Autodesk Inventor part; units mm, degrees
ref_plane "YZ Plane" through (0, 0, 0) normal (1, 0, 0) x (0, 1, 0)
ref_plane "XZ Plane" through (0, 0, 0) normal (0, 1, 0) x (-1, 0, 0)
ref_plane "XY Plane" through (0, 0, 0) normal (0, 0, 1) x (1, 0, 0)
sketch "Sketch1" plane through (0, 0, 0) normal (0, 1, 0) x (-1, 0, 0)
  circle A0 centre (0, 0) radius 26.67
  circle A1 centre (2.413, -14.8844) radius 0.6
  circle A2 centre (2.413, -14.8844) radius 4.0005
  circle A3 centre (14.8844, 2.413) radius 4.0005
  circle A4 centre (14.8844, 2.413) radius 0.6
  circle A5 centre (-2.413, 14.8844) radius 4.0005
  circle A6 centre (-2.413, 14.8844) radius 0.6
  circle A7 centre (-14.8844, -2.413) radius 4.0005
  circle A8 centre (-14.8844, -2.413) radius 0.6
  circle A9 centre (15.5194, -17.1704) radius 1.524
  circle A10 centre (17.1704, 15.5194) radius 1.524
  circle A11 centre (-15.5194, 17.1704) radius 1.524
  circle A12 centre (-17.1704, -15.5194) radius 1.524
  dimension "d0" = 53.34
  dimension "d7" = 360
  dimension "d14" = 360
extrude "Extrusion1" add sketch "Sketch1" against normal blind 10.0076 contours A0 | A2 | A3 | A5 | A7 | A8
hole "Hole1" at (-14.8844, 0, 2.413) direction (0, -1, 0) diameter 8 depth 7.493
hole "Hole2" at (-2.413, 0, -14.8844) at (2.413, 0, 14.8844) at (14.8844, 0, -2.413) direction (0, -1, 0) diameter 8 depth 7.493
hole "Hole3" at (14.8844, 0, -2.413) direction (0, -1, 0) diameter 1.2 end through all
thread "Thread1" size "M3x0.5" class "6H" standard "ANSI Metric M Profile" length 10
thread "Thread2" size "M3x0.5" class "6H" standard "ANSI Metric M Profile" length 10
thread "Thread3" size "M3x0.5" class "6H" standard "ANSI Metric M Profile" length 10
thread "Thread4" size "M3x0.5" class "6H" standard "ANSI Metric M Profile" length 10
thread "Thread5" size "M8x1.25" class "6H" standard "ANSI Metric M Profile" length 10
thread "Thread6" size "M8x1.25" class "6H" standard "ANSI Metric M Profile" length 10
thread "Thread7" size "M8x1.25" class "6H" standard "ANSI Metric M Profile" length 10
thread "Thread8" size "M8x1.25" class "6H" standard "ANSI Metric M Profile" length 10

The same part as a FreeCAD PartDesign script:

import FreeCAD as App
import Part
import Sketcher
from FreeCAD import Vector
Q = App.Units.Quantity

doc = App.newDocument("Part")
params = doc.addObject("Spreadsheet::Sheet", "Params")
for row, (alias, value) in enumerate([
    ("sketch1_diameter", "2.1 in"),
    ("sketch1_diameter2", "0.12 in"),
    ("pad1_length", "0.394 in"),
    ("hole_diameter", "8 mm"),
    ("hole_depth", "0.295 in"),
    ("hole2_diameter", "8 mm"),
    ("hole2_depth", "0.295 in"),
    ("hole3_diameter", "1.2 mm"),
], start=1):
    params.set(f"A{row}", alias)
    params.set(f"B{row}", "=" + value)
    params.setAlias(f"B{row}", alias)

body = doc.addObject("PartDesign::Body", "Body")

# Sketch on XZ plane
sketch1 = body.newObject("Sketcher::SketchObject", "Sketch")
sketch1.AttachmentSupport = (doc.getObject("XZ_Plane"), [""])
sketch1.MapMode = "FlatFace"
sketch1.addGeometry([
    Part.Circle(Vector(0, 0, 0), Vector(0, 0, 1), 26.7),  # 0
    Part.Circle(Vector(17.2, -15.5, 0), Vector(0, 0, 1), 1.5),  # 1
    Part.Circle(Vector(-15.5, -17.2, 0), Vector(0, 0, 1), 1.5),  # 2
    Part.Circle(Vector(15.5, 17.2, 0), Vector(0, 0, 1), 1.5),  # 3
    Part.Circle(Vector(-17.2, 15.5, 0), Vector(0, 0, 1), 1.5),  # 4
    Part.Circle(Vector(-2.4, -14.9, 0), Vector(0, 0, 1), 0.6),  # 5
    Part.Circle(Vector(2.4, 14.9, 0), Vector(0, 0, 1), 0.6),  # 6
    Part.Circle(Vector(-14.9, 2.4, 0), Vector(0, 0, 1), 0.6),  # 7
], False)
sketch1.addConstraint([
    Sketcher.Constraint("Coincident", 0, 3, -1, 1),
    Sketcher.Constraint("Equal", 1, 2),
    Sketcher.Constraint("Equal", 2, 3),
    Sketcher.Constraint("Equal", 3, 4),
    Sketcher.Constraint("Equal", 5, 6),
    Sketcher.Constraint("Equal", 6, 7),
    Sketcher.Constraint("Symmetric", 2, 3, 3, 3, -1, 1),
    Sketcher.Constraint("Symmetric", 1, 3, 4, 3, -1, 1),
    Sketcher.Constraint("Symmetric", 5, 3, 6, 3, -1, 1),
    Sketcher.Constraint("Diameter", 0, Q("2.1 in")),
    Sketcher.Constraint("Diameter", 1, Q("0.12 in")),
    Sketcher.Constraint("Diameter", 5, Q("1.2 mm")),
    Sketcher.Constraint("DistanceY", 2, 3, 5, 3, Q("0.09 in")),
    Sketcher.Constraint("DistanceX", 5, 3, 6, 3, Q("0.19 in")),
    Sketcher.Constraint("DistanceX", 4, 3, 7, 3, Q("0.09 in")),
    Sketcher.Constraint("DistanceX", -1, 1, 1, 3, Q("0.676 in")),
    Sketcher.Constraint("DistanceY", 1, 3, -1, 1, Q("0.611 in")),
    Sketcher.Constraint("DistanceX", 2, 3, -1, 1, Q("0.611 in")),
    Sketcher.Constraint("DistanceY", 2, 3, -1, 1, Q("0.676 in")),
    Sketcher.Constraint("DistanceY", -1, 1, 7, 3, Q("0.095 in")),
])
sketch1.setExpression("Constraints[9]", "Params.sketch1_diameter")
sketch1.setExpression("Constraints[10]", "Params.sketch1_diameter2")
pad1 = body.newObject("PartDesign::Pad", "Pad")
pad1.Profile = sketch1
pad1.setExpression("Length", "Params.pad1_length")

# Sketch on XZ plane
sketch2 = body.newObject("Sketcher::SketchObject", "Sketch001")
sketch2.AttachmentSupport = (doc.getObject("XZ_Plane"), [""])
sketch2.MapMode = "FlatFace"
sketch2.addGeometry(Part.Circle(Vector(-14.9, 2.4, 0), Vector(0, 0, 1), 4), False)
sketch2.addConstraint([
    Sketcher.Constraint("Diameter", 0, Q("8 mm")),
    Sketcher.Constraint("DistanceX", 0, 3, -1, 1, Q("0.586 in")),
    Sketcher.Constraint("DistanceY", -1, 1, 0, 3, Q("0.095 in")),
])
doc.recompute()
hole = body.newObject("PartDesign::Hole", "Hole")
hole.Profile = sketch2
hole.ThreadType = "None"
hole.setExpression("Diameter", "Params.hole_diameter")
hole.DepthType = "Dimension"
hole.setExpression("Depth", "Params.hole_depth")
hole.DrillPoint = "Flat"
hole.Reversed = True

# Sketch on XZ plane
sketch3 = body.newObject("Sketcher::SketchObject", "Sketch002")
sketch3.AttachmentSupport = (doc.getObject("XZ_Plane"), [""])
sketch3.MapMode = "FlatFace"
sketch3.addGeometry([
    Part.Circle(Vector(-2.4, -14.9, 0), Vector(0, 0, 1), 4),
    Part.Circle(Vector(2.4, 14.9, 0), Vector(0, 0, 1), 4),
    Part.Circle(Vector(14.9, -2.4, 0), Vector(0, 0, 1), 4),
], False)
sketch3.addConstraint([
    Sketcher.Constraint("Equal", 0, 1),
    Sketcher.Constraint("Equal", 1, 2),
    Sketcher.Constraint("Symmetric", 0, 3, 1, 3, -1, 1),
    Sketcher.Constraint("Diameter", 0, Q("8 mm")),
    Sketcher.Constraint("DistanceX", 0, 3, 1, 3, Q("0.19 in")),
    Sketcher.Constraint("DistanceY", 0, 3, -1, 1, Q("0.586 in")),
    Sketcher.Constraint("DistanceX", -1, 1, 2, 3, Q("0.586 in")),
    Sketcher.Constraint("DistanceY", 2, 3, -1, 1, Q("0.095 in")),
])
doc.recompute()
hole2 = body.newObject("PartDesign::Hole", "Hole001")
hole2.Profile = sketch3
hole2.ThreadType = "None"
hole2.setExpression("Diameter", "Params.hole2_diameter")
hole2.DepthType = "Dimension"
hole2.setExpression("Depth", "Params.hole2_depth")
hole2.DrillPoint = "Flat"
hole2.Reversed = True

# Sketch on XZ plane
sketch4 = body.newObject("Sketcher::SketchObject", "Sketch003")
sketch4.AttachmentSupport = (doc.getObject("XZ_Plane"), [""])
sketch4.MapMode = "FlatFace"
sketch4.addGeometry(Part.Circle(Vector(14.9, -2.4, 0), Vector(0, 0, 1), 0.6), False)
sketch4.addConstraint([
    Sketcher.Constraint("Diameter", 0, Q("1.2 mm")),
    Sketcher.Constraint("DistanceX", -1, 1, 0, 3, Q("0.586 in")),
    Sketcher.Constraint("DistanceY", 0, 3, -1, 1, Q("0.095 in")),
])
doc.recompute()
hole3 = body.newObject("PartDesign::Hole", "Hole002")
hole3.Profile = sketch4
hole3.ThreadType = "None"
hole3.setExpression("Diameter", "Params.hole3_diameter")
hole3.DepthType = "ThroughAll"
hole3.Reversed = True

doc.recompute()
